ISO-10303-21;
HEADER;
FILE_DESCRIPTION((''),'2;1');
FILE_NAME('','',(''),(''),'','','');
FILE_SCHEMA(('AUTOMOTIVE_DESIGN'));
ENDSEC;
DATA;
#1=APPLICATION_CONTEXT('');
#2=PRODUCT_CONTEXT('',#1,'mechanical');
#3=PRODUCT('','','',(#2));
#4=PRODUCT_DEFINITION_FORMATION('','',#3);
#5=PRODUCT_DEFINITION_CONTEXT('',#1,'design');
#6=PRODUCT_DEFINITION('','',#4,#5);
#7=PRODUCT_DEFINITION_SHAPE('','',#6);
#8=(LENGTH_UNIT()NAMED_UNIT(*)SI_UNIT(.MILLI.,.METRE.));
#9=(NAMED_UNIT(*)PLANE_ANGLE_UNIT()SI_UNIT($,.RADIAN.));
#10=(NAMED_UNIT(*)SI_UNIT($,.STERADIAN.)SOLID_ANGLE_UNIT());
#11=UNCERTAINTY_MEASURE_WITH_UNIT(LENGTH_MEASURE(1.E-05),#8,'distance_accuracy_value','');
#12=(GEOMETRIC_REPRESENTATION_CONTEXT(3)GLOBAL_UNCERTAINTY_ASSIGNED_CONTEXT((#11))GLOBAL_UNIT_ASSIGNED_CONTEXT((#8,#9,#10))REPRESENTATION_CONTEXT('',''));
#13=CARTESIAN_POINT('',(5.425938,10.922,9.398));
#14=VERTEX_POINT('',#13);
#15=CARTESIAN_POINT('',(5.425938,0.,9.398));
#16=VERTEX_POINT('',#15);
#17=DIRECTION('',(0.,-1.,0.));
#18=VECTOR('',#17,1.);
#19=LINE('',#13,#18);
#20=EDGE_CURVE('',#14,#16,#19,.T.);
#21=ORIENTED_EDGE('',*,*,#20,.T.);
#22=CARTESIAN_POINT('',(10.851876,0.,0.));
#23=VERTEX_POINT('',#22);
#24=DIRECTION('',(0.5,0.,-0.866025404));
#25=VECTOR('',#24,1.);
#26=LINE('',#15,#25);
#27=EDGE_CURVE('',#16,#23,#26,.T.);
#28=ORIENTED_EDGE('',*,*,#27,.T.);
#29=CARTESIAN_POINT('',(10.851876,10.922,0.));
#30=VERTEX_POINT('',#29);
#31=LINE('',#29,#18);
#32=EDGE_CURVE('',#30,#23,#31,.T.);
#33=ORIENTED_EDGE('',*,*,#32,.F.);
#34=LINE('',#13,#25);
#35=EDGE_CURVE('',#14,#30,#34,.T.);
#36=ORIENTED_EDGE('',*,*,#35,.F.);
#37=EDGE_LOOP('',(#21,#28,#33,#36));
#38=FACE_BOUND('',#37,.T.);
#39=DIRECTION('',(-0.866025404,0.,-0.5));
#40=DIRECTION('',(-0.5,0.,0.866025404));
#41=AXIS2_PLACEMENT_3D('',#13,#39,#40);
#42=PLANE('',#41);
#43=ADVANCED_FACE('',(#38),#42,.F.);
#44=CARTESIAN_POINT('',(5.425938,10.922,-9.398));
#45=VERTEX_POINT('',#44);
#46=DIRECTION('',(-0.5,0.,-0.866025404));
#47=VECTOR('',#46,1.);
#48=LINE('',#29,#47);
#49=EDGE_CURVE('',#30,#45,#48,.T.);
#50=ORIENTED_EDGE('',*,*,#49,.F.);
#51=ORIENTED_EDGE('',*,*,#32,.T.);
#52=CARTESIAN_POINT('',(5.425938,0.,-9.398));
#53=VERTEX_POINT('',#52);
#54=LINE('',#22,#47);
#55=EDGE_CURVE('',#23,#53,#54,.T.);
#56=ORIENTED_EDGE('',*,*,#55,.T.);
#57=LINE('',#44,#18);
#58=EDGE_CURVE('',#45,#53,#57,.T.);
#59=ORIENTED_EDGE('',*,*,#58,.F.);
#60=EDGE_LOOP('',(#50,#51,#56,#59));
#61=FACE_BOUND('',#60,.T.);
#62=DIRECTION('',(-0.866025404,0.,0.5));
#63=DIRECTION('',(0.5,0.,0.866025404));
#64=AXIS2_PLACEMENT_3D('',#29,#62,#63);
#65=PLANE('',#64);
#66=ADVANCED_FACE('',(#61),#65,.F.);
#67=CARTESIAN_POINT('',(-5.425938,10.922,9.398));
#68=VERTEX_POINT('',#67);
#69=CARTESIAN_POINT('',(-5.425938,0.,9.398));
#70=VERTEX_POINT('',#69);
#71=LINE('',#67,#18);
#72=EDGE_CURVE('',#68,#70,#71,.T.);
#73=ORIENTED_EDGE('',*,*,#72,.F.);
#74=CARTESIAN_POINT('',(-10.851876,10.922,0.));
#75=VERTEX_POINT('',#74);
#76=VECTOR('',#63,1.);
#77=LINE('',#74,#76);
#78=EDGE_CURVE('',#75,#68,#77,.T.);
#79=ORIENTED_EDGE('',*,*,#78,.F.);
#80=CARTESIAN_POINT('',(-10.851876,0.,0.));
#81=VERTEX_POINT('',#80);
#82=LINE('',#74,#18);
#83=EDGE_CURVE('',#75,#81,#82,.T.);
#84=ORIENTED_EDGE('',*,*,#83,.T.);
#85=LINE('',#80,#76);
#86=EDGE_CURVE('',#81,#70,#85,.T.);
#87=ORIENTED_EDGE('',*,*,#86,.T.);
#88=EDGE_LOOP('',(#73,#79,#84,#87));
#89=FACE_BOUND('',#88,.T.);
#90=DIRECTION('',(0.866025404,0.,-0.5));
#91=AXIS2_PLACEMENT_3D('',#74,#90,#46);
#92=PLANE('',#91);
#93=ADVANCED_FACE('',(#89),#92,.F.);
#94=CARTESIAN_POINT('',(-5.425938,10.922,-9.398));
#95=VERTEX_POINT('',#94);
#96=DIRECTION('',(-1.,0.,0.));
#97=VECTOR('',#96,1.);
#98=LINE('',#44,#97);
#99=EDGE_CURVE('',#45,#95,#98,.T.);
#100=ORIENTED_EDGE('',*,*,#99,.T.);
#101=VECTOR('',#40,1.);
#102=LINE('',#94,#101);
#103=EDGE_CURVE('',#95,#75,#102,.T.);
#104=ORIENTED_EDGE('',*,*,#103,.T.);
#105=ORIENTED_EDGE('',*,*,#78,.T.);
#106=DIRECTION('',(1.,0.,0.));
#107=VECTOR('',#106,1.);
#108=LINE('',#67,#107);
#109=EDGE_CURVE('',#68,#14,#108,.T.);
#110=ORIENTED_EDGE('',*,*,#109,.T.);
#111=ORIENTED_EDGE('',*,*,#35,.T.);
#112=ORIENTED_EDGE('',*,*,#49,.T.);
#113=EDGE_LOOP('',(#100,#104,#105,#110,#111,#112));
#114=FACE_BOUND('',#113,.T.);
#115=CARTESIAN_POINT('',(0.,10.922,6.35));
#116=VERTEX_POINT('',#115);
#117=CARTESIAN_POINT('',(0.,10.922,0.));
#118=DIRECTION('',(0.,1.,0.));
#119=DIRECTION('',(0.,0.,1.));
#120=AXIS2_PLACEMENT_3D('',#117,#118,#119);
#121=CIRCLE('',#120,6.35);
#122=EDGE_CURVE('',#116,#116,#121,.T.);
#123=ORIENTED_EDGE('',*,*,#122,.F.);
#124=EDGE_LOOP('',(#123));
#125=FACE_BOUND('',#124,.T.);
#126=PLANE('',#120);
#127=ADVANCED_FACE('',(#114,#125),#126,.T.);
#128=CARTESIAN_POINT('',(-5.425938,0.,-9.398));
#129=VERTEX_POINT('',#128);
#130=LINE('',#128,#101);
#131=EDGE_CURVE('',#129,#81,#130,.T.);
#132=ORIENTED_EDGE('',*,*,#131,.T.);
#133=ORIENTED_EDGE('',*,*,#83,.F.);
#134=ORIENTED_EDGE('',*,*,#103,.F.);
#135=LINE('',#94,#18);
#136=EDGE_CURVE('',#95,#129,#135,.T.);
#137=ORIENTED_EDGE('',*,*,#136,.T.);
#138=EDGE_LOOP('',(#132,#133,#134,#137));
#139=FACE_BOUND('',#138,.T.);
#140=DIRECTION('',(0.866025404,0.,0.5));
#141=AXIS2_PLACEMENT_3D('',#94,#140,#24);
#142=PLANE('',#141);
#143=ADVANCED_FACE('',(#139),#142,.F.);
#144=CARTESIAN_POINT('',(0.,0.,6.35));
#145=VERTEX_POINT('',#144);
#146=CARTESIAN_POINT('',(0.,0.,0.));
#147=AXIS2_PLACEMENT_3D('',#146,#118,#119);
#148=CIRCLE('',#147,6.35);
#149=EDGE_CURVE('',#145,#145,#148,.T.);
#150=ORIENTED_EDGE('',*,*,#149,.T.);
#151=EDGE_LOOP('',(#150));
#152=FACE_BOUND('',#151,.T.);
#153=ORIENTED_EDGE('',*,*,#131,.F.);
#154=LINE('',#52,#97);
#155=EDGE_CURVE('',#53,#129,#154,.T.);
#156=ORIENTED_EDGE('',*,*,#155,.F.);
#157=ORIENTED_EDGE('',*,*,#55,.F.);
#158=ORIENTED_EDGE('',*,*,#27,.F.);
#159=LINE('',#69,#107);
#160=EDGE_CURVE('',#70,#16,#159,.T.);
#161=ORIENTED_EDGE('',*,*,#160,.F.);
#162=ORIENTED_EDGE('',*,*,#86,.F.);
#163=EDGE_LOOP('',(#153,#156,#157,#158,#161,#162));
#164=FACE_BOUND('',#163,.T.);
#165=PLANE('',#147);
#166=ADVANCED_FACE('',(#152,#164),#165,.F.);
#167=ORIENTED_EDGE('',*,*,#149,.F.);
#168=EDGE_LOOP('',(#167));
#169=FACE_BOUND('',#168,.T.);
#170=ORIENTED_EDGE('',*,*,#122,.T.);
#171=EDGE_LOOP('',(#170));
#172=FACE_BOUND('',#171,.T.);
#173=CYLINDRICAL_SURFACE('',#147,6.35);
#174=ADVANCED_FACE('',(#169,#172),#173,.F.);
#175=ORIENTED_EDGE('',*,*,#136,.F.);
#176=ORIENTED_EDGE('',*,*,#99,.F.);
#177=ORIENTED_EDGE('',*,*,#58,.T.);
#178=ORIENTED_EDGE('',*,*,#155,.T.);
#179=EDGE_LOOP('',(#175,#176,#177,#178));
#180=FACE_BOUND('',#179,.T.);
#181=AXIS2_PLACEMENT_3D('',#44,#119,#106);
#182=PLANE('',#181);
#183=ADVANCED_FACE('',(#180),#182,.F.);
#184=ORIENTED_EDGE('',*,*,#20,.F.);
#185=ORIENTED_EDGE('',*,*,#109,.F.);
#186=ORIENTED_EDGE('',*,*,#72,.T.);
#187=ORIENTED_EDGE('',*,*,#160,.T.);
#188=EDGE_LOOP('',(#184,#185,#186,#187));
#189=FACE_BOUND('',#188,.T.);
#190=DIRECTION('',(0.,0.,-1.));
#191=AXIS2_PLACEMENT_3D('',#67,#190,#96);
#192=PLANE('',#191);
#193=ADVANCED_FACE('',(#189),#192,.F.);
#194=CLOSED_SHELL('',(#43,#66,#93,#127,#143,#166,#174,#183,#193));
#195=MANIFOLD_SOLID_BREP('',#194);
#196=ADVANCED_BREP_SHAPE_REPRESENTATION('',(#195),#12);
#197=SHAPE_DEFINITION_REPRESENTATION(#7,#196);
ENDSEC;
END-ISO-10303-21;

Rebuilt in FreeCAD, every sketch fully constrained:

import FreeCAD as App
import Part
import Sketcher
from FreeCAD import Vector
Q = App.Units.Quantity


def add_polygon(sketch, points):
    """Adds a closed chain of lines whose ends are joined by coincident constraints."""
    first, n = sketch.GeometryCount, len(points)
    for a, b in zip(points, points[1:] + points[:1]):
        sketch.addGeometry(Part.LineSegment(App.Vector(*a, 0), App.Vector(*b, 0)), False)
    for i in range(n):
        sketch.addConstraint(Sketcher.Constraint("Coincident", first + i, 2, first + (i + 1) % n, 1))

doc = App.newDocument("Part")
params = doc.addObject("Spreadsheet::Sheet", "Params")
for row, (alias, value) in enumerate([
    ("pad1_length", "0.43 in"),
    ("sketch2_diameter", "0.5 in"),
], start=1):
    params.set(f"A{row}", alias)
    params.set(f"B{row}", "=" + value)
    params.setAlias(f"B{row}", alias)

body = doc.addObject("PartDesign::Body", "Body")

sketch1 = body.newObject("Sketcher::SketchObject", "Sketch")
sketch1.AttachmentSupport = (doc.getObject("XZ_Plane"), [""])
sketch1.MapMode = "FlatFace"
add_polygon(sketch1, [(5, 9), (11, 0), (5, -9), (-5, -9), (-11, 0), (-5, 9)])
sketch1.addConstraint([
    Sketcher.Constraint("Horizontal", 2),
    Sketcher.Constraint("Horizontal", 5),
    Sketcher.Constraint("Symmetric", 0, 2, 3, 2, -1, 1),
    Sketcher.Constraint("Symmetric", 1, 2, 4, 2, -1, 1),
    Sketcher.Constraint("PointOnObject", 0, 2, -1),
    Sketcher.Constraint("Parallel", 0, 3),
    Sketcher.Constraint("Vertical", 2, 2, 4, 2),
    Sketcher.Constraint("Angle", 0, Q("-60 deg")),
    Sketcher.Constraint("DistanceY", 1, 2, -1, 1, Q("0.37 in")),
    Sketcher.Constraint("DistanceX", 2, 2, 2, 1, 10.851876),
])
pad1 = body.newObject("PartDesign::Pad", "Pad")
pad1.Profile = sketch1
pad1.setExpression("Length", "Params.pad1_length")
pad1.Reversed = True

sketch2 = body.newObject("Sketcher::SketchObject", "Sketch001")
sketch2.AttachmentSupport = (doc.getObject("XZ_Plane"), [""])
sketch2.MapMode = "FlatFace"
sketch2.AttachmentOffset = App.Placement(Vector(0, 0, -0.43 * 25.4), App.Rotation())
sketch2.addGeometry(Part.Circle(Vector(0, 0, 0), Vector(0, 0, 1), 6), False)
sketch2.addConstraint([
    Sketcher.Constraint("Coincident", 0, 3, -1, 1),
    Sketcher.Constraint("Diameter", 0, Q("0.5 in")),
])
sketch2.setExpression("Constraints[1]", "Params.sketch2_diameter")
pocket1 = body.newObject("PartDesign::Pocket", "Pocket")
pocket1.Profile = sketch2
pocket1.Type = "ThroughAll"
pocket1.Reversed = True

doc.recompute()
